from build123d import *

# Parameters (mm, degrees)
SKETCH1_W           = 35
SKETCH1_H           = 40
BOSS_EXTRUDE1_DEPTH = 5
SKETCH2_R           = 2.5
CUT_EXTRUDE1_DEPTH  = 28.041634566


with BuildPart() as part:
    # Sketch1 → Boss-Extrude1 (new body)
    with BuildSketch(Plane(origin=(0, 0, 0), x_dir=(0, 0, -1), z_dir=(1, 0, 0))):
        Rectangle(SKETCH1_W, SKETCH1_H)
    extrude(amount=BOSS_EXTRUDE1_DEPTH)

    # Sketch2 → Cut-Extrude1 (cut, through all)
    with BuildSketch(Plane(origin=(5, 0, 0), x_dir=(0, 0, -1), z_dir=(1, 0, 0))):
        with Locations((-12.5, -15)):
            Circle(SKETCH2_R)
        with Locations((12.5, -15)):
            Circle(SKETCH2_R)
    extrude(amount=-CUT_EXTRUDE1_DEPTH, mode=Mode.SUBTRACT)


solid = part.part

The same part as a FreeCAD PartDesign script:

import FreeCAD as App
import Part
import Sketcher

V = App.Vector
Q = App.Units.Quantity

doc = App.newDocument("Part")
body = doc.addObject("PartDesign::Body", "Body")

# Sketch on YZ plane
sketch1 = doc.addObject("Sketcher::SketchObject", "Sketch")
body.addObject(sketch1)
sketch1.AttachmentSupport = (doc.YZ_Plane, [""])
sketch1.MapMode = "FlatFace"
sketch1.addGeometry(Part.LineSegment(V(20, 17.5, 0), V(-20, 17.5, 0)), False)
sketch1.addGeometry(Part.LineSegment(V(-20, 17.5, 0), V(-20, -17.5, 0)), False)
sketch1.addGeometry(Part.LineSegment(V(-20, -17.5, 0), V(20, -17.5, 0)), False)
sketch1.addGeometry(Part.LineSegment(V(20, -17.5, 0), V(20, 17.5, 0)), False)
sketch1.addConstraint(Sketcher.Constraint("Coincident", 0, 2, 1, 1))
sketch1.addConstraint(Sketcher.Constraint("Coincident", 1, 2, 2, 1))
sketch1.addConstraint(Sketcher.Constraint("Coincident", 2, 2, 3, 1))
sketch1.addConstraint(Sketcher.Constraint("Coincident", 3, 2, 0, 1))
sketch1.addConstraint(Sketcher.Constraint("Horizontal", 0))
sketch1.addConstraint(Sketcher.Constraint("Vertical", 1))
sketch1.addConstraint(Sketcher.Constraint("Horizontal", 2))
sketch1.addConstraint(Sketcher.Constraint("Vertical", 3))
sketch1.addConstraint(Sketcher.Constraint("Symmetric", 0, 2, 2, 2, -1, 1))
sketch1.addConstraint(Sketcher.Constraint("DistanceX", 0, 2, 0, 1, Q("40 mm")))
sketch1.addConstraint(Sketcher.Constraint("DistanceY", 1, 2, 1, 1, Q("35 mm")))
pad1 = doc.addObject("PartDesign::Pad", "Pad")
body.addObject(pad1)
pad1.Profile = sketch1
pad1.Length = 5

# Sketch on YZ plane
sketch2 = doc.addObject("Sketcher::SketchObject", "Sketch001")
body.addObject(sketch2)
sketch2.AttachmentSupport = (doc.YZ_Plane, [""])
sketch2.MapMode = "FlatFace"
sketch2.AttachmentOffset = App.Placement(V(0, 0, 5), App.Rotation())
sketch2.addGeometry(Part.Circle(V(-15, 12.5, 0), V(0, 0, 1), 2.5), False)
sketch2.addGeometry(Part.Circle(V(-15, -12.5, 0), V(0, 0, 1), 2.5), False)
sketch2.addConstraint(Sketcher.Constraint("Equal", 0, 1))
sketch2.addConstraint(Sketcher.Constraint("Symmetric", 0, 3, 1, 3, -1))
sketch2.addConstraint(Sketcher.Constraint("Diameter", 0, Q("5 mm")))
sketch2.addConstraint(Sketcher.Constraint("DistanceX", 0, 3, -1, 1, Q("15 mm")))
sketch2.addConstraint(Sketcher.Constraint("DistanceY", 1, 3, 0, 3, Q("25 mm")))
pocket1 = doc.addObject("PartDesign::Pocket", "Pocket")
body.addObject(pocket1)
pocket1.Profile = sketch2
pocket1.Type = "ThroughAll"

doc.recompute()
